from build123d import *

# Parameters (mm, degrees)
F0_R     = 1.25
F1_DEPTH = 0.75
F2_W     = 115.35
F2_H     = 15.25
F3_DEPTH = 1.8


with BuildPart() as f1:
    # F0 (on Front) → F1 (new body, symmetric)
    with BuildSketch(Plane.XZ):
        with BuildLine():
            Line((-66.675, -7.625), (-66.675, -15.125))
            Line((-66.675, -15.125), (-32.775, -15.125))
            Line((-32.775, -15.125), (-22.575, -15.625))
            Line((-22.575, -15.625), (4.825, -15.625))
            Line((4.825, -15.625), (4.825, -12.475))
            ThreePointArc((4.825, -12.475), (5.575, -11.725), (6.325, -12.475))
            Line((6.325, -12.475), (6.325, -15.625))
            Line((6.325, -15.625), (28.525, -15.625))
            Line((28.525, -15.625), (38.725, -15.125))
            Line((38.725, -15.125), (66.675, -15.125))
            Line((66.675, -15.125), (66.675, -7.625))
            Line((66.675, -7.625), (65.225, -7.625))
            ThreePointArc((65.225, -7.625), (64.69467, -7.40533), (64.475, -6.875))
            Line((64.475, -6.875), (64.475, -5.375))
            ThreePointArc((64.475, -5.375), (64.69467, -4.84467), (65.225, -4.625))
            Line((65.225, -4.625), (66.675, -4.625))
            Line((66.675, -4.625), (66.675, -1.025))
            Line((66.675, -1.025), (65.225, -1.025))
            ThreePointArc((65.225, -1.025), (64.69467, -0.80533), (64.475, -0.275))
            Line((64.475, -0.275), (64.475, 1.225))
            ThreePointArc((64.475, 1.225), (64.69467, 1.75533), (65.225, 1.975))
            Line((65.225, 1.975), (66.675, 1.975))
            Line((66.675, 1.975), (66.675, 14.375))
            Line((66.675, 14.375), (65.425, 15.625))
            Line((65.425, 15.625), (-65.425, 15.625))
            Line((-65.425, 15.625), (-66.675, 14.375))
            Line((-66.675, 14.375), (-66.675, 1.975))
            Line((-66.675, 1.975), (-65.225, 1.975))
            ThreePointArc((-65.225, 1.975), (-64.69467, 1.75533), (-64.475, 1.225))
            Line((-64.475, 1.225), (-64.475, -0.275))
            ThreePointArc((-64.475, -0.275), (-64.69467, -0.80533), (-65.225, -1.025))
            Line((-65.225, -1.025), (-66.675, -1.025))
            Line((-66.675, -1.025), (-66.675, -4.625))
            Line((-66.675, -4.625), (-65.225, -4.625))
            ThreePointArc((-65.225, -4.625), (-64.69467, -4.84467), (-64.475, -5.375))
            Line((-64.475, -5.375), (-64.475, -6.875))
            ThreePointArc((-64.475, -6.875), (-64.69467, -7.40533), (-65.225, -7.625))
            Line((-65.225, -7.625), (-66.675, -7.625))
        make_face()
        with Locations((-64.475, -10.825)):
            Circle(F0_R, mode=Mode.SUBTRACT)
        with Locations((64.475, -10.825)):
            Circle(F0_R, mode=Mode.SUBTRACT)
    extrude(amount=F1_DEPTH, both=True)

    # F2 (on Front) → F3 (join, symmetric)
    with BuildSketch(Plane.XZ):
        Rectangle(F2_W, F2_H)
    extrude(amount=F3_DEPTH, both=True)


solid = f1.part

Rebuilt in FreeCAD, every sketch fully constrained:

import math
import FreeCAD as App
import Part
import Sketcher

doc = App.newDocument("Part")
body = doc.addObject("PartDesign::Body", "Body")

# Sketch on XZ plane
sketch1 = doc.addObject("Sketcher::SketchObject", "Sketch")
body.addObject(sketch1)
sketch1.AttachmentSupport = (doc.XZ_Plane, [""])
sketch1.MapMode = "FlatFace"
sketch1.addGeometry(Part.LineSegment(App.Vector(-66.7, -7.6, 0), App.Vector(-66.7, -15.1, 0)), False)
sketch1.addGeometry(Part.LineSegment(App.Vector(-66.7, -15.1, 0), App.Vector(-32.8, -15.1, 0)), False)
sketch1.addGeometry(Part.LineSegment(App.Vector(-32.8, -15.1, 0), App.Vector(-22.6, -15.6, 0)), False)
sketch1.addGeometry(Part.LineSegment(App.Vector(-22.6, -15.6, 0), App.Vector(4.8, -15.6, 0)), False)
sketch1.addGeometry(Part.LineSegment(App.Vector(4.8, -15.6, 0), App.Vector(4.8, -12.5, 0)), False)
sketch1.addGeometry(Part.ArcOfCircle(Part.Circle(App.Vector(5.6, -12.5, 0), App.Vector(0, 0, 1), 0.8), math.radians(0), math.radians(180)), False)
sketch1.addGeometry(Part.LineSegment(App.Vector(6.3, -12.5, 0), App.Vector(6.3, -15.6, 0)), False)
sketch1.addGeometry(Part.LineSegment(App.Vector(6.3, -15.6, 0), App.Vector(28.5, -15.6, 0)), False)
sketch1.addGeometry(Part.LineSegment(App.Vector(28.5, -15.6, 0), App.Vector(38.7, -15.1, 0)), False)
sketch1.addGeometry(Part.LineSegment(App.Vector(38.7, -15.1, 0), App.Vector(66.7, -15.1, 0)), False)
sketch1.addGeometry(Part.LineSegment(App.Vector(66.7, -15.1, 0), App.Vector(66.7, -7.6, 0)), False)
sketch1.addGeometry(Part.LineSegment(App.Vector(66.7, -7.6, 0), App.Vector(65.2, -7.6, 0)), False)
sketch1.addGeometry(Part.ArcOfCircle(Part.Circle(App.Vector(65.2, -6.9, 0), App.Vector(0, 0, 1), 0.8), math.radians(-180), math.radians(-90)), False)
sketch1.addGeometry(Part.LineSegment(App.Vector(64.5, -6.9, 0), App.Vector(64.5, -5.4, 0)), False)
sketch1.addGeometry(Part.ArcOfCircle(Part.Circle(App.Vector(65.2, -5.4, 0), App.Vector(0, 0, 1), 0.8), math.radians(90), math.radians(180)), False)
sketch1.addGeometry(Part.LineSegment(App.Vector(65.2, -4.6, 0), App.Vector(66.7, -4.6, 0)), False)
sketch1.addGeometry(Part.LineSegment(App.Vector(66.7, -4.6, 0), App.Vector(66.7, -1, 0)), False)
sketch1.addGeometry(Part.LineSegment(App.Vector(66.7, -1, 0), App.Vector(65.2, -1, 0)), False)
sketch1.addGeometry(Part.ArcOfCircle(Part.Circle(App.Vector(65.2, -0.3, 0), App.Vector(0, 0, 1), 0.8), math.radians(-180), math.radians(-90)), False)
sketch1.addGeometry(Part.LineSegment(App.Vector(64.5, -0.3, 0), App.Vector(64.5, 1.2, 0)), False)
sketch1.addGeometry(Part.ArcOfCircle(Part.Circle(App.Vector(65.2, 1.2, 0), App.Vector(0, 0, 1), 0.8), math.radians(90), math.radians(180)), False)
sketch1.addGeometry(Part.LineSegment(App.Vector(65.2, 2, 0), App.Vector(66.7, 2, 0)), False)
sketch1.addGeometry(Part.LineSegment(App.Vector(66.7, 2, 0), App.Vector(66.7, 14.4, 0)), False)
sketch1.addGeometry(Part.LineSegment(App.Vector(66.7, 14.4, 0), App.Vector(65.4, 15.6, 0)), False)
sketch1.addGeometry(Part.LineSegment(App.Vector(65.4, 15.6, 0), App.Vector(-65.4, 15.6, 0)), False)
sketch1.addGeometry(Part.LineSegment(App.Vector(-65.4, 15.6, 0), App.Vector(-66.7, 14.4, 0)), False)
sketch1.addGeometry(Part.LineSegment(App.Vector(-66.7, 14.4, 0), App.Vector(-66.7, 2, 0)), False)
sketch1.addGeometry(Part.LineSegment(App.Vector(-66.7, 2, 0), App.Vector(-65.2, 2, 0)), False)
sketch1.addGeometry(Part.ArcOfCircle(Part.Circle(App.Vector(-65.2, 1.2, 0), App.Vector(0, 0, 1), 0.8), math.radians(0), math.radians(90)), False)
sketch1.addGeometry(Part.LineSegment(App.Vector(-64.5, 1.2, 0), App.Vector(-64.5, -0.3, 0)), False)
sketch1.addGeometry(Part.ArcOfCircle(Part.Circle(App.Vector(-65.2, -0.3, 0), App.Vector(0, 0, 1), 0.8), math.radians(-90), math.radians(0)), False)
sketch1.addGeometry(Part.LineSegment(App.Vector(-65.2, -1, 0), App.Vector(-66.7, -1, 0)), False)
sketch1.addGeometry(Part.LineSegment(App.Vector(-66.7, -1, 0), App.Vector(-66.7, -4.6, 0)), False)
sketch1.addGeometry(Part.LineSegment(App.Vector(-66.7, -4.6, 0), App.Vector(-65.2, -4.6, 0)), False)
sketch1.addGeometry(Part.ArcOfCircle(Part.Circle(App.Vector(-65.2, -5.4, 0), App.Vector(0, 0, 1), 0.8), math.radians(0), math.radians(90)), False)
sketch1.addGeometry(Part.LineSegment(App.Vector(-64.5, -5.4, 0), App.Vector(-64.5, -6.9, 0)), False)
sketch1.addGeometry(Part.ArcOfCircle(Part.Circle(App.Vector(-65.2, -6.9, 0), App.Vector(0, 0, 1), 0.8), math.radians(-90), math.radians(0)), False)
sketch1.addGeometry(Part.LineSegment(App.Vector(-65.2, -7.6, 0), App.Vector(-66.7, -7.6, 0)), False)
sketch1.addGeometry(Part.Circle(App.Vector(-64.5, -10.8, 0), App.Vector(0, 0, 1), 1.2), False)
sketch1.addGeometry(Part.Circle(App.Vector(64.5, -10.8, 0), App.Vector(0, 0, 1), 1.2), False)
sketch1.addConstraint(Sketcher.Constraint("Coincident", 0, 2, 1, 1))
sketch1.addConstraint(Sketcher.Constraint("Coincident", 1, 2, 2, 1))
sketch1.addConstraint(Sketcher.Constraint("Coincident", 2, 2, 3, 1))
sketch1.addConstraint(Sketcher.Constraint("Coincident", 3, 2, 4, 1))
sketch1.addConstraint(Sketcher.Constraint("Tangent", 4, 2, 5, 2))
sketch1.addConstraint(Sketcher.Constraint("Tangent", 5, 1, 6, 1))
sketch1.addConstraint(Sketcher.Constraint("Coincident", 6, 2, 7, 1))
sketch1.addConstraint(Sketcher.Constraint("Coincident", 7, 2, 8, 1))
sketch1.addConstraint(Sketcher.Constraint("Coincident", 8, 2, 9, 1))
sketch1.addConstraint(Sketcher.Constraint("Coincident", 9, 2, 10, 1))
sketch1.addConstraint(Sketcher.Constraint("Coincident", 10, 2, 11, 1))
sketch1.addConstraint(Sketcher.Constraint("Tangent", 11, 2, 12, 2))
sketch1.addConstraint(Sketcher.Constraint("Tangent", 12, 1, 13, 1))
sketch1.addConstraint(Sketcher.Constraint("Tangent", 13, 2, 14, 2))
sketch1.addConstraint(Sketcher.Constraint("Tangent", 14, 1, 15, 1))
sketch1.addConstraint(Sketcher.Constraint("Coincident", 15, 2, 16, 1))
sketch1.addConstraint(Sketcher.Constraint("Coincident", 16, 2, 17, 1))
sketch1.addConstraint(Sketcher.Constraint("Tangent", 17, 2, 18, 2))
sketch1.addConstraint(Sketcher.Constraint("Tangent", 18, 1, 19, 1))
sketch1.addConstraint(Sketcher.Constraint("Tangent", 19, 2, 20, 2))
sketch1.addConstraint(Sketcher.Constraint("Tangent", 20, 1, 21, 1))
sketch1.addConstraint(Sketcher.Constraint("Coincident", 21, 2, 22, 1))
sketch1.addConstraint(Sketcher.Constraint("Coincident", 22, 2, 23, 1))
sketch1.addConstraint(Sketcher.Constraint("Coincident", 23, 2, 24, 1))
sketch1.addConstraint(Sketcher.Constraint("Coincident", 24, 2, 25, 1))
sketch1.addConstraint(Sketcher.Constraint("Coincident", 25, 2, 26, 1))
sketch1.addConstraint(Sketcher.Constraint("Coincident", 26, 2, 27, 1))
sketch1.addConstraint(Sketcher.Constraint("Tangent", 27, 2, 28, 2))
sketch1.addConstraint(Sketcher.Constraint("Tangent", 28, 1, 29, 1))
sketch1.addConstraint(Sketcher.Constraint("Tangent", 29, 2, 30, 2))
sketch1.addConstraint(Sketcher.Constraint("Tangent", 30, 1, 31, 1))
sketch1.addConstraint(Sketcher.Constraint("Coincident", 31, 2, 32, 1))
sketch1.addConstraint(Sketcher.Constraint("Coincident", 32, 2, 33, 1))
sketch1.addConstraint(Sketcher.Constraint("Tangent", 33, 2, 34, 2))
sketch1.addConstraint(Sketcher.Constraint("Tangent", 34, 1, 35, 1))
sketch1.addConstraint(Sketcher.Constraint("Tangent", 35, 2, 36, 2))
sketch1.addConstraint(Sketcher.Constraint("Tangent", 36, 1, 37, 1))
sketch1.addConstraint(Sketcher.Constraint("Coincident", 37, 2, 0, 1))
sketch1.addConstraint(Sketcher.Constraint("Vertical", 0))
sketch1.addConstraint(Sketcher.Constraint("Horizontal", 1))
sketch1.addConstraint(Sketcher.Constraint("Horizontal", 3))
sketch1.addConstraint(Sketcher.Constraint("Vertical", 4))
sketch1.addConstraint(Sketcher.Constraint("Vertical", 6))
sketch1.addConstraint(Sketcher.Constraint("Horizontal", 7))
sketch1.addConstraint(Sketcher.Constraint("Horizontal", 9))
sketch1.addConstraint(Sketcher.Constraint("Vertical", 10))
sketch1.addConstraint(Sketcher.Constraint("Horizontal", 11))
sketch1.addConstraint(Sketcher.Constraint("Vertical", 13))
sketch1.addConstraint(Sketcher.Constraint("Horizontal", 15))
sketch1.addConstraint(Sketcher.Constraint("Vertical", 16))
sketch1.addConstraint(Sketcher.Constraint("Horizontal", 17))
sketch1.addConstraint(Sketcher.Constraint("Vertical", 19))
sketch1.addConstraint(Sketcher.Constraint("Horizontal", 21))
sketch1.addConstraint(Sketcher.Constraint("Vertical", 22))
sketch1.addConstraint(Sketcher.Constraint("Horizontal", 24))
sketch1.addConstraint(Sketcher.Constraint("Vertical", 26))
sketch1.addConstraint(Sketcher.Constraint("Horizontal", 27))
sketch1.addConstraint(Sketcher.Constraint("Vertical", 29))
sketch1.addConstraint(Sketcher.Constraint("Horizontal", 31))
sketch1.addConstraint(Sketcher.Constraint("Vertical", 32))
sketch1.addConstraint(Sketcher.Constraint("Horizontal", 33))
sketch1.addConstraint(Sketcher.Constraint("Vertical", 35))
sketch1.addConstraint(Sketcher.Constraint("Horizontal", 37))
sketch1.addConstraint(Sketcher.Constraint("Equal", 5, 12))
sketch1.addConstraint(Sketcher.Constraint("Equal", 12, 14))
sketch1.addConstraint(Sketcher.Constraint("Equal", 14, 18))
sketch1.addConstraint(Sketcher.Constraint("Equal", 18, 20))
sketch1.addConstraint(Sketcher.Constraint("Equal", 20, 28))
sketch1.addConstraint(Sketcher.Constraint("Equal", 28, 30))
sketch1.addConstraint(Sketcher.Constraint("Equal", 30, 34))
sketch1.addConstraint(Sketcher.Constraint("Equal", 34, 36))
sketch1.addConstraint(Sketcher.Constraint("Equal", 38, 39))
sketch1.addConstraint(Sketcher.Constraint("Symmetric", 20, 3, 28, 3, -2))
sketch1.addConstraint(Sketcher.Constraint("Symmetric", 14, 3, 34, 3, -2))
sketch1.addConstraint(Sketcher.Constraint("Symmetric", 38, 3, 39, 3, -2))
sketch1.addConstraint(Sketcher.Constraint("Symmetric", 0, 2, 9, 2, -2))
sketch1.addConstraint(Sketcher.Constraint("Symmetric", 22, 2, 25, 2, -2))
sketch1.addConstraint(Sketcher.Constraint("Symmetric", 16, 2, 31, 2, -2))
sketch1.addConstraint(Sketcher.Constraint("Perpendicular", 23, 25))
sketch1.addConstraint(Sketcher.Constraint("Horizontal", 12, 3, 36, 3))
sketch1.addConstraint(Sketcher.Constraint("Horizontal", 3, 2, 6, 2))
sketch1.addConstraint(Sketcher.Constraint("Vertical", 14, 3, 18, 3))
sketch1.addConstraint(Sketcher.Constraint("Vertical", 39, 3, 12, 1))
sketch1.addConstraint(Sketcher.Constraint("Vertical", 10, 2, 15, 2))
sketch1.addConstraint(Sketcher.Constraint("Vertical", 16, 2, 21, 2))
sketch1.addConstraint(Sketcher.Constraint("Equal", 13, 19))
sketch1.addConstraint(Sketcher.Constraint("Equal", 2, 8))
sketch1.addConstraint(Sketcher.Constraint("Equal", 23, 25))
sketch1.addConstraint(Sketcher.Constraint("Diameter", 38, 2.5))
sketch1.addConstraint(Sketcher.Constraint("Radius", 5, 0.75))
sketch1.addConstraint(Sketcher.Constraint("DistanceX", 1, 1, 1, 2, 33.9))
sketch1.addConstraint(Sketcher.Constraint("DistanceX", 3, 1, 3, 2, 27.4))
sketch1.addConstraint(Sketcher.Constraint("DistanceX", 7, 1, 7, 2, 22.2))
sketch1.addConstraint(Sketcher.Constraint("DistanceY", 0, 2, 0, 1, 7.5))
sketch1.addConstraint(Sketcher.Constraint("DistanceY", 13, 1, 13, 2, 1.5))
sketch1.addConstraint(Sketcher.Constraint("DistanceY", 16, 1, 16, 2, 3.6))
sketch1.addConstraint(Sketcher.Constraint("DistanceY", 22, 1, 22, 2, 12.4))
sketch1.addConstraint(Sketcher.Constraint("DistanceY", 34, 3, 24, 2, 21.0))
sketch1.addConstraint(Sketcher.Constraint("DistanceX", 9, 1, 9, 2, 27.95))
sketch1.addConstraint(Sketcher.Constraint("DistanceX", 11, 2, 11, 1, 1.45))
sketch1.addConstraint(Sketcher.Constraint("DistanceX", 24, 2, 24, 1, 130.85))
sketch1.addConstraint(Sketcher.Constraint("DistanceY", 4, 1, 4, 2, 3.15))
sketch1.addConstraint(Sketcher.Constraint("DistanceY", 5, 3, 12, 3, 5.6))
sketch1.addConstraint(Sketcher.Constraint("DistanceY", 0, 2, 38, 3, 4.3))
sketch1.addConstraint(Sketcher.Constraint("DistanceY", 5, 3, -1, 1, 12.475))
pad1 = doc.addObject("PartDesign::Pad", "Pad")
body.addObject(pad1)
pad1.Profile = sketch1
pad1.Length = 1.5
pad1.Midplane = True

# Sketch on XZ plane
sketch2 = doc.addObject("Sketcher::SketchObject", "Sketch001")
body.addObject(sketch2)
sketch2.AttachmentSupport = (doc.XZ_Plane, [""])
sketch2.MapMode = "FlatFace"
sketch2.addGeometry(Part.LineSegment(App.Vector(-58, 8, 0), App.Vector(-58, -8, 0)), False)
sketch2.addGeometry(Part.LineSegment(App.Vector(-58, -8, 0), App.Vector(58, -8, 0)), False)
sketch2.addGeometry(Part.LineSegment(App.Vector(58, -8, 0), App.Vector(58, 8, 0)), False)
sketch2.addGeometry(Part.LineSegment(App.Vector(58, 8, 0), App.Vector(-58, 8, 0)), False)
sketch2.addConstraint(Sketcher.Constraint("Coincident", 0, 2, 1, 1))
sketch2.addConstraint(Sketcher.Constraint("Coincident", 1, 2, 2, 1))
sketch2.addConstraint(Sketcher.Constraint("Coincident", 2, 2, 3, 1))
sketch2.addConstraint(Sketcher.Constraint("Coincident", 3, 2, 0, 1))
sketch2.addConstraint(Sketcher.Constraint("Vertical", 0))
sketch2.addConstraint(Sketcher.Constraint("Horizontal", 1))
sketch2.addConstraint(Sketcher.Constraint("Vertical", 2))
sketch2.addConstraint(Sketcher.Constraint("Horizontal", 3))
sketch2.addConstraint(Sketcher.Constraint("Symmetric", 0, 2, 2, 2, -1, 1))
sketch2.addConstraint(Sketcher.Constraint("DistanceX", 1, 1, 1, 2, 115.35))
sketch2.addConstraint(Sketcher.Constraint("DistanceY", 0, 2, 0, 1, 15.25))
pad2 = doc.addObject("PartDesign::Pad", "Pad001")
body.addObject(pad2)
pad2.Profile = sketch2
pad2.Length = 3.6
pad2.Midplane = True

doc.recompute()
